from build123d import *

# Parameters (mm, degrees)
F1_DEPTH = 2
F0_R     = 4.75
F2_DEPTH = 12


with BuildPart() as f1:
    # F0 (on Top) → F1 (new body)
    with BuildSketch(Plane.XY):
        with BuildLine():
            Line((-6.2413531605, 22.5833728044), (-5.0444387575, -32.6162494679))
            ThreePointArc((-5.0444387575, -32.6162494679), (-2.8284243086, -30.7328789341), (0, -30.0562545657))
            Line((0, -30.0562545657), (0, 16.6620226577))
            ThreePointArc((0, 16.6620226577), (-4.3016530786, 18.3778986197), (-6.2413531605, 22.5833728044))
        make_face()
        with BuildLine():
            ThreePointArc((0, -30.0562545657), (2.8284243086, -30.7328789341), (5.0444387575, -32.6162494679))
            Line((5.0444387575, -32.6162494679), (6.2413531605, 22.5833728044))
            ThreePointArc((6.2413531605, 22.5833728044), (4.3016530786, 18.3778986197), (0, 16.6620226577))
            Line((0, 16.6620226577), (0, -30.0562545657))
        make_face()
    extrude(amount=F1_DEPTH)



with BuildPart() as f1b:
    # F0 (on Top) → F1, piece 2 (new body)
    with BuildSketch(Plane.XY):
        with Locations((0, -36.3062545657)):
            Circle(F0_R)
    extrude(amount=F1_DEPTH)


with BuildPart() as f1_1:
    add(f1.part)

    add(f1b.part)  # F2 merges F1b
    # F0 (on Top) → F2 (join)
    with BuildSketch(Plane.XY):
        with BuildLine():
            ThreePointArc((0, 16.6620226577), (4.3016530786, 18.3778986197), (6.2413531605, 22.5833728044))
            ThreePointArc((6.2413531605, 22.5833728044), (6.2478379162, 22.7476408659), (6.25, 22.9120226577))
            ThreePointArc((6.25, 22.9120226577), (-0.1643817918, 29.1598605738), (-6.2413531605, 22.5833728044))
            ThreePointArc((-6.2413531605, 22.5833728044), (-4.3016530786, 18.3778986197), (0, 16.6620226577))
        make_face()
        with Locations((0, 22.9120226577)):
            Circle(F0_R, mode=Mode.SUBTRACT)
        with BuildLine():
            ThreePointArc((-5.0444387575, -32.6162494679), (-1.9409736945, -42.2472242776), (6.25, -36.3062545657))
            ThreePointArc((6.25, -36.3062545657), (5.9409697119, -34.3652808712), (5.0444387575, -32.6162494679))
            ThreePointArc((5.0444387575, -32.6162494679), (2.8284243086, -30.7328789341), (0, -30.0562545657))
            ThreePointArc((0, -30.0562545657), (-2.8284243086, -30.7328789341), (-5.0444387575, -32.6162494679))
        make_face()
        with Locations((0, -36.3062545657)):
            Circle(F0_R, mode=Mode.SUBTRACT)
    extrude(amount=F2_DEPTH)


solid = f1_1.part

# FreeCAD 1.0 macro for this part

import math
import FreeCAD as App
import Part
import Sketcher
from FreeCAD import Vector

doc = App.newDocument("Part")
params = doc.addObject("Spreadsheet::Sheet", "Params")
for row, (alias, value) in enumerate([
    ("sketch1_radius", "6.25 mm"),
    ("pad1_length", "2 mm"),
    ("sketch2_diameter", "9.5 mm"),
    ("pad2_length", "2 mm"),
    ("sketch3_diameter", "9.5 mm"),
    ("sketch3_radius", "6.25 mm"),
    ("pad3_length", "12 mm"),
], start=1):
    params.set(f"A{row}", alias)
    params.set(f"B{row}", "=" + value)
    params.setAlias(f"B{row}", alias)

body = doc.addObject("PartDesign::Body", "Body")

# Sketch on XY plane
sketch1 = body.newObject("Sketcher::SketchObject", "Sketch")
sketch1.AttachmentSupport = (doc.getObject("XY_Plane"), [""])
sketch1.MapMode = "FlatFace"
sketch1.addGeometry([
    Part.LineSegment(Vector(-6, 23, 0), Vector(-5, -33, 0)),  # 0
    Part.ArcOfCircle(Part.Circle(Vector(0, -36, 0), Vector(0, 0, 1), 6), math.radians(90), math.radians(144)),  # 1
    Part.ArcOfCircle(Part.Circle(Vector(0, -36, 0), Vector(0, 0, 1), 6), math.radians(36), math.radians(90)),  # 2
    Part.LineSegment(Vector(5, -33, 0), Vector(6, 23, 0)),  # 3
    Part.ArcOfCircle(Part.Circle(Vector(0, 23, 0), Vector(0, 0, 1), 6), math.radians(-90), math.radians(-3)),  # 4
    Part.ArcOfCircle(Part.Circle(Vector(0, 23, 0), Vector(0, 0, 1), 6), math.radians(-177), math.radians(-90)),  # 5
], False)
sketch1.addConstraint([
    Sketcher.Constraint("Coincident", 0, 2, 1, 2),
    Sketcher.Constraint("Tangent", 1, 1, 2, 2),
    Sketcher.Constraint("Coincident", 2, 1, 3, 1),
    Sketcher.Constraint("Coincident", 3, 2, 4, 2),
    Sketcher.Constraint("Tangent", 4, 1, 5, 2),
    Sketcher.Constraint("Coincident", 5, 1, 0, 1),
    Sketcher.Constraint("Equal", 1, 2),
    Sketcher.Constraint("Equal", 2, 4),
    Sketcher.Constraint("Equal", 4, 5),
    Sketcher.Constraint("Symmetric", 0, 2, 2, 1, -2),
    Sketcher.Constraint("Symmetric", 3, 2, 5, 1, -2),
    Sketcher.Constraint("PointOnObject", 1, 1, -2),
    Sketcher.Constraint("PointOnObject", 4, 1, -2),
    Sketcher.Constraint("Radius", 1, 6.25),
    Sketcher.Constraint("DistanceX", 0, 2, -1, 1, 5.044439),
    Sketcher.Constraint("DistanceY", 0, 2, -1, 1, 32.616249),
    Sketcher.Constraint("DistanceY", 3, 2, 4, 3, 0.32865),
    Sketcher.Constraint("Distance", 0, 55.212597),
])
sketch1.setExpression("Constraints[13]", "Params.sketch1_radius")
pad1 = body.newObject("PartDesign::Pad", "Pad")
pad1.Profile = sketch1
pad1.setExpression("Length", "Params.pad1_length")
body2 = doc.addObject("PartDesign::Body", "Body001")

# Sketch on XY plane
sketch2 = body2.newObject("Sketcher::SketchObject", "Sketch001")
sketch2.AttachmentSupport = (doc.getObject("XY_Plane001"), [""])
sketch2.MapMode = "FlatFace"
sketch2.addGeometry(Part.Circle(Vector(0, -36.3, 0), Vector(0, 0, 1), 4.8), False)
sketch2.addConstraint([
    Sketcher.Constraint("PointOnObject", 0, 3, -2),
    Sketcher.Constraint("Diameter", 0, 9.5),
    Sketcher.Constraint("DistanceY", 0, 3, -1, 1, 36.306255),
])
sketch2.setExpression("Constraints[1]", "Params.sketch2_diameter")
pad2 = body2.newObject("PartDesign::Pad", "Pad001")
pad2.Profile = sketch2
pad2.setExpression("Length", "Params.pad2_length")
body.AllowCompound = True
doc.recompute()

boolean = body.newObject("PartDesign::Boolean", "Boolean")
boolean.Type = "Fuse"
boolean.addObjects([body2])

# Sketch on XY plane
sketch3 = body.newObject("Sketcher::SketchObject", "Sketch002")
sketch3.AttachmentSupport = (doc.getObject("XY_Plane"), [""])
sketch3.MapMode = "FlatFace"
sketch3.addGeometry([
    Part.ArcOfCircle(Part.Circle(Vector(0, 22.91, 0), Vector(0, 0, 1), 6.25), math.radians(-90), math.radians(-3)),  # 0
    Part.ArcOfCircle(Part.Circle(Vector(0, 22.91, 0), Vector(0, 0, 1), 6.25), math.radians(-3.01), math.radians(0)),  # 1
    Part.ArcOfCircle(Part.Circle(Vector(0, 22.91, 0), Vector(0, 0, 1), 6.25), math.radians(0), math.radians(183)),  # 2
    Part.ArcOfCircle(Part.Circle(Vector(0, 22.91, 0), Vector(0, 0, 1), 6.25), math.radians(-177), math.radians(-90)),  # 3
    Part.Circle(Vector(0, 22.91, 0), Vector(0, 0, 1), 4.75),  # 4
    Part.ArcOfCircle(Part.Circle(Vector(0, -36.31, 0), Vector(0, 0, 1), 6.25), math.radians(144), math.radians(360)),  # 5
    Part.ArcOfCircle(Part.Circle(Vector(0, -36.31, 0), Vector(0, 0, 1), 6.25), math.radians(0), math.radians(36)),  # 6
    Part.ArcOfCircle(Part.Circle(Vector(0, -36.31, 0), Vector(0, 0, 1), 6.25), math.radians(36), math.radians(90)),  # 7
    Part.ArcOfCircle(Part.Circle(Vector(0, -36.31, 0), Vector(0, 0, 1), 6.25), math.radians(90), math.radians(144)),  # 8
    Part.Circle(Vector(0, -36.31, 0), Vector(0, 0, 1), 4.75),  # 9
], False)
sketch3.addConstraint([
    Sketcher.Constraint("Tangent", 0, 2, 1, 1),
    Sketcher.Constraint("Tangent", 1, 2, 2, 1),
    Sketcher.Constraint("Tangent", 2, 2, 3, 1),
    Sketcher.Constraint("Tangent", 3, 2, 0, 1),
    Sketcher.Constraint("Tangent", 5, 2, 6, 1),
    Sketcher.Constraint("Tangent", 6, 2, 7, 1),
    Sketcher.Constraint("Tangent", 7, 2, 8, 1),
    Sketcher.Constraint("Tangent", 8, 2, 5, 1),
    Sketcher.Constraint("Coincident", 4, 3, 0, 3),
    Sketcher.Constraint("Coincident", 9, 3, 5, 3),
    Sketcher.Constraint("Equal", 0, 1),
    Sketcher.Constraint("Equal", 3, 5),
    Sketcher.Constraint("Equal", 5, 6),
    Sketcher.Constraint("Equal", 4, 9),
    Sketcher.Constraint("Symmetric", 0, 2, 2, 2, -2),
    Sketcher.Constraint("Symmetric", 6, 2, 8, 2, -2),
    Sketcher.Constraint("PointOnObject", 3, 2, -2),
    Sketcher.Constraint("PointOnObject", 7, 2, -2),
    Sketcher.Constraint("Horizontal", 4, 3, 1, 2),
    Sketcher.Constraint("Horizontal", 9, 3, 5, 2),
    Sketcher.Constraint("Diameter", 4, 9.5),
    Sketcher.Constraint("Radius", 0, 6.25),
    Sketcher.Constraint("DistanceX", -1, 1, 6, 2, 5.044439),
    Sketcher.Constraint("DistanceY", 6, 2, -1, 1, 32.616249),
    Sketcher.Constraint("DistanceY", 0, 2, 1, 3, 0.32865),
    Sketcher.Constraint("DistanceY", -1, 1, 0, 3, 22.912023),
])
sketch3.setExpression("Constraints[20]", "Params.sketch3_diameter")
sketch3.setExpression("Constraints[21]", "Params.sketch3_radius")
pad3 = body.newObject("PartDesign::Pad", "Pad002")
pad3.Profile = sketch3
pad3.setExpression("Length", "Params.pad3_length")

doc.recompute()
